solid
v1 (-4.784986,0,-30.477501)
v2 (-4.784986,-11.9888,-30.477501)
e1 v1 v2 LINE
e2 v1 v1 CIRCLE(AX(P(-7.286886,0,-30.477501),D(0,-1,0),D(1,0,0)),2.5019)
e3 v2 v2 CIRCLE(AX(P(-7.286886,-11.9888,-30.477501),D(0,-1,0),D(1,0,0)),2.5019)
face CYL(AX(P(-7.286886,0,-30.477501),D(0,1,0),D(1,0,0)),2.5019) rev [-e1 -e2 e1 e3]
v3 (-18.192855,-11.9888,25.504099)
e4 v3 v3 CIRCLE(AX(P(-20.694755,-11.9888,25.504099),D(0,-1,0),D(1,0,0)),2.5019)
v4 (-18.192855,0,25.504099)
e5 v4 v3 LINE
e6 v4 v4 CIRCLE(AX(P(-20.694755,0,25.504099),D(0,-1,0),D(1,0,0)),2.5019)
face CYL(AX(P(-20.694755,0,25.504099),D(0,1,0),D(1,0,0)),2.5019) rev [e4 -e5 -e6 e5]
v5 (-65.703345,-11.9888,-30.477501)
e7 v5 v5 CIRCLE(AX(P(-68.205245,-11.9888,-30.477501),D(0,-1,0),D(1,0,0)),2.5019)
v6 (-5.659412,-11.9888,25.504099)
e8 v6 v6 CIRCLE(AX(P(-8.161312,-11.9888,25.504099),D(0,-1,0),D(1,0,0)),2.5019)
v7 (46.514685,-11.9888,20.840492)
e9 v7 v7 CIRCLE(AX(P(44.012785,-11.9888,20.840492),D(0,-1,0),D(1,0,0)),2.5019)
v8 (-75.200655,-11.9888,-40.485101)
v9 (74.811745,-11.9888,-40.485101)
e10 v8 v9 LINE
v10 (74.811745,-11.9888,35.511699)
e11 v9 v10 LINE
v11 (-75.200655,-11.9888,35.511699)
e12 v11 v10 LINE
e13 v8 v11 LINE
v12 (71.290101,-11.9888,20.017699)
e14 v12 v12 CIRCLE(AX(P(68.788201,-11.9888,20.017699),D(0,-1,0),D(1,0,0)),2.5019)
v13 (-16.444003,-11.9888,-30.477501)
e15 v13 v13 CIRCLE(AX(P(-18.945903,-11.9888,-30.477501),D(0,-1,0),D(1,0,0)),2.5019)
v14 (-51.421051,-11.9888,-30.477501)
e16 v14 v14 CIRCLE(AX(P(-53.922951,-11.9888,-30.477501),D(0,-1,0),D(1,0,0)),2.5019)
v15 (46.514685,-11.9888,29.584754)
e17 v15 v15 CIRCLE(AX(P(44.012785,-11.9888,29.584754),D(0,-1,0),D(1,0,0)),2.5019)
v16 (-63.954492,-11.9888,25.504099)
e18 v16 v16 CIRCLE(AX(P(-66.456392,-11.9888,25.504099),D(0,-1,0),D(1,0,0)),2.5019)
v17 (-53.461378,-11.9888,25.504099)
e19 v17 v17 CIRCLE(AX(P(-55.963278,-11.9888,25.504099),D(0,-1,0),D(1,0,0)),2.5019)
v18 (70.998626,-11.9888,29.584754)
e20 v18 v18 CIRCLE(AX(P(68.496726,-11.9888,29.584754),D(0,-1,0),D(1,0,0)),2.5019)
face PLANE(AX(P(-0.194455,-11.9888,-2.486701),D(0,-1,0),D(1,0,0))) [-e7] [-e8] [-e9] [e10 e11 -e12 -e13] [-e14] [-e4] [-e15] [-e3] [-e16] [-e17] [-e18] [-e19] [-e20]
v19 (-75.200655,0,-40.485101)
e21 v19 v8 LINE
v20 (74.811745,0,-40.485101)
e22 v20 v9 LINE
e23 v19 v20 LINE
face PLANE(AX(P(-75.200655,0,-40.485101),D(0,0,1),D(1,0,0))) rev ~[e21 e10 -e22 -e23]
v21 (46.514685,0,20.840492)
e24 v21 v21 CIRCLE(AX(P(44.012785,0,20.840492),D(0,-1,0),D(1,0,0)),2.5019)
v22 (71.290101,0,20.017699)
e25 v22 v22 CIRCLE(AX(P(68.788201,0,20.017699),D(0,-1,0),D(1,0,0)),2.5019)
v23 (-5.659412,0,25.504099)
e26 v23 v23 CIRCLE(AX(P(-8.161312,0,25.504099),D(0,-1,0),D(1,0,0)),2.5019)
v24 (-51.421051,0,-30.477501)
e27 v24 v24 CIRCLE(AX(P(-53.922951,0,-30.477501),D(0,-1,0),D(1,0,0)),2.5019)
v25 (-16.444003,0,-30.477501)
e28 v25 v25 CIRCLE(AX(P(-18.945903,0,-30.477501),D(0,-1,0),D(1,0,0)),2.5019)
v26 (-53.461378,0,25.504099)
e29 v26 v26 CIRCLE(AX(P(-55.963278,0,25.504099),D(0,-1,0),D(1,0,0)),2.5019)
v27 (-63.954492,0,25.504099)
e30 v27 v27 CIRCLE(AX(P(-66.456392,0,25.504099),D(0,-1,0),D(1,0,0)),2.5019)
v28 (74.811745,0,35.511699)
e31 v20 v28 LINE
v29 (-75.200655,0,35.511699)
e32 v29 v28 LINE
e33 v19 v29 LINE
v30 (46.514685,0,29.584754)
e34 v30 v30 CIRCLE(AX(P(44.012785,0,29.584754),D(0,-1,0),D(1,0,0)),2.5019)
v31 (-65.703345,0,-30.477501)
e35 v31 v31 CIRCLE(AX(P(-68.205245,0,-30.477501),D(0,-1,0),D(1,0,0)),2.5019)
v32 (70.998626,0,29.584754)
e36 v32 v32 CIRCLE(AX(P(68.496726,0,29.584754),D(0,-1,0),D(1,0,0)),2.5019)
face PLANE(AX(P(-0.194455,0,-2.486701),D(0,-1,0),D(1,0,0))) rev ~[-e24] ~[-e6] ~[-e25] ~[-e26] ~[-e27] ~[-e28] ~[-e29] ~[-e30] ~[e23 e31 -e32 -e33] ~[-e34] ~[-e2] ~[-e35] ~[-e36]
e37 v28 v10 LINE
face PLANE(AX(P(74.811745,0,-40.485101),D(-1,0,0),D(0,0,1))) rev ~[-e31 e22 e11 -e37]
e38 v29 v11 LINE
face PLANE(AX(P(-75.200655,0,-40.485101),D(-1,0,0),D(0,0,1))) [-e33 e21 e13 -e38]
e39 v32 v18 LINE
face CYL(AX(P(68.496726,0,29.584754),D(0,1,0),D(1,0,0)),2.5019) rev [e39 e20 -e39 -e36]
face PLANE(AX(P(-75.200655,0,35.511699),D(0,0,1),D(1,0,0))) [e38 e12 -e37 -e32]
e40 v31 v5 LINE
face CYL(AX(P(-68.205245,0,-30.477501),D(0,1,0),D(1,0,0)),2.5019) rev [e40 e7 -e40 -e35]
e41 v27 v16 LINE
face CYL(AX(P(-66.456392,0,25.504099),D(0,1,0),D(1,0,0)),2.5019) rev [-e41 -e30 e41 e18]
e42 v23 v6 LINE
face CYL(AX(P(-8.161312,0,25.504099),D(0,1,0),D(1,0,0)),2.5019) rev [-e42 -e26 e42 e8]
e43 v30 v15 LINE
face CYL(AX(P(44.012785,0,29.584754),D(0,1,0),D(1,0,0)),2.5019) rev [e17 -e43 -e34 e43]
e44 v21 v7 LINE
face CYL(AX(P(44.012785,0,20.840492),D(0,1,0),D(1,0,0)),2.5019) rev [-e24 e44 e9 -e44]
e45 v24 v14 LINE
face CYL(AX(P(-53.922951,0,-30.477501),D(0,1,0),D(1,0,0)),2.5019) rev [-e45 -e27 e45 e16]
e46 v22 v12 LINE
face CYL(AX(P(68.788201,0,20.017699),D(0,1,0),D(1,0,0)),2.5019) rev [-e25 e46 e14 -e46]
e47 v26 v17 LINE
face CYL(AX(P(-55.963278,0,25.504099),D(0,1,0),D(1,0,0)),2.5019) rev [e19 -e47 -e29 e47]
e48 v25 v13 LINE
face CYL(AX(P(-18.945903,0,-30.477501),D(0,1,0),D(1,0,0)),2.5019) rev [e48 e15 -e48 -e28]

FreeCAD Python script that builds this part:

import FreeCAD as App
import Part
import Sketcher
Q = App.Units.Quantity

doc = App.newDocument("Part")
params = doc.addObject("Spreadsheet::Sheet", "Params")
for row, (alias, value) in enumerate([
    ("sketch1_diameter", "0.197 in"),
    ("sketch1_width", "5.906 in"),
    ("sketch1_height", "2.992 in"),
    ("pad1_length", "0.472 in"),
], start=1):
    params.set(f"A{row}", alias)
    params.set(f"B{row}", "=" + value)
    params.setAlias(f"B{row}", alias)

body = doc.addObject("PartDesign::Body", "Body")

sketch1 = body.newObject("Sketcher::SketchObject", "Sketch")
sketch1.AttachmentSupport = (doc.getObject("XZ_Plane"), [""])
sketch1.MapMode = "FlatFace"
sketch1.addGeometry(Part.LineSegment(App.Vector(-75.2, 35.5, 0), App.Vector(-75.2, -40.5, 0)), False)
sketch1.addGeometry(Part.LineSegment(App.Vector(-75.2, -40.5, 0), App.Vector(74.8, -40.5, 0)), False)
sketch1.addGeometry(Part.LineSegment(App.Vector(74.8, -40.5, 0), App.Vector(74.8, 35.5, 0)), False)
sketch1.addGeometry(Part.LineSegment(App.Vector(74.8, 35.5, 0), App.Vector(-75.2, 35.5, 0)), False)
sketch1.addGeometry(Part.Circle(App.Vector(-68.2, -30.5, 0), App.Vector(0, 0, 1), 2.5), False)
sketch1.addGeometry(Part.Circle(App.Vector(-53.9, -30.5, 0), App.Vector(0, 0, 1), 2.5), False)
sketch1.addGeometry(Part.Circle(App.Vector(-18.9, -30.5, 0), App.Vector(0, 0, 1), 2.5), False)
sketch1.addGeometry(Part.Circle(App.Vector(-7.3, -30.5, 0), App.Vector(0, 0, 1), 2.5), False)
sketch1.addGeometry(Part.Circle(App.Vector(-66.5, 25.5, 0), App.Vector(0, 0, 1), 2.5), False)
sketch1.addGeometry(Part.Circle(App.Vector(-56, 25.5, 0), App.Vector(0, 0, 1), 2.5), False)
sketch1.addGeometry(Part.Circle(App.Vector(-20.7, 25.5, 0), App.Vector(0, 0, 1), 2.5), False)
sketch1.addGeometry(Part.Circle(App.Vector(-8.2, 25.5, 0), App.Vector(0, 0, 1), 2.5), False)
sketch1.addGeometry(Part.Circle(App.Vector(44, 20.8, 0), App.Vector(0, 0, 1), 2.5), False)
sketch1.addGeometry(Part.Circle(App.Vector(68.8, 20, 0), App.Vector(0, 0, 1), 2.5), False)
sketch1.addGeometry(Part.Circle(App.Vector(44, 29.6, 0), App.Vector(0, 0, 1), 2.5), False)
sketch1.addGeometry(Part.Circle(App.Vector(68.5, 29.6, 0), App.Vector(0, 0, 1), 2.5), False)
sketch1.addConstraint(Sketcher.Constraint("Coincident", 0, 2, 1, 1))
sketch1.addConstraint(Sketcher.Constraint("Coincident", 1, 2, 2, 1))
sketch1.addConstraint(Sketcher.Constraint("Coincident", 2, 2, 3, 1))
sketch1.addConstraint(Sketcher.Constraint("Coincident", 3, 2, 0, 1))
sketch1.addConstraint(Sketcher.Constraint("Vertical", 0))
sketch1.addConstraint(Sketcher.Constraint("Horizontal", 1))
sketch1.addConstraint(Sketcher.Constraint("Vertical", 2))
sketch1.addConstraint(Sketcher.Constraint("Horizontal", 3))
sketch1.addConstraint(Sketcher.Constraint("Equal", 4, 5))
sketch1.addConstraint(Sketcher.Constraint("Equal", 5, 6))
sketch1.addConstraint(Sketcher.Constraint("Equal", 6, 7))
sketch1.addConstraint(Sketcher.Constraint("Equal", 7, 8))
sketch1.addConstraint(Sketcher.Constraint("Equal", 8, 9))
sketch1.addConstraint(Sketcher.Constraint("Equal", 9, 10))
sketch1.addConstraint(Sketcher.Constraint("Equal", 10, 11))
sketch1.addConstraint(Sketcher.Constraint("Equal", 11, 12))
sketch1.addConstraint(Sketcher.Constraint("Equal", 12, 13))
sketch1.addConstraint(Sketcher.Constraint("Equal", 13, 14))
sketch1.addConstraint(Sketcher.Constraint("Equal", 14, 15))
sketch1.addConstraint(Sketcher.Constraint("Horizontal", 4, 3, 5, 3))
sketch1.addConstraint(Sketcher.Constraint("Horizontal", 5, 3, 6, 3))
sketch1.addConstraint(Sketcher.Constraint("Horizontal", 6, 3, 7, 3))
sketch1.addConstraint(Sketcher.Constraint("Horizontal", 8, 3, 9, 3))
sketch1.addConstraint(Sketcher.Constraint("Horizontal", 9, 3, 10, 3))
sketch1.addConstraint(Sketcher.Constraint("Horizontal", 10, 3, 11, 3))
sketch1.addConstraint(Sketcher.Constraint("Horizontal", 14, 3, 15, 3))
sketch1.addConstraint(Sketcher.Constraint("Vertical", 12, 3, 14, 3))
sketch1.addConstraint(Sketcher.Constraint("Diameter", 4, Q("0.197 in")))
sketch1.addConstraint(Sketcher.Constraint("DistanceX", 1, 1, 1, 2, Q("5.906 in")))
sketch1.addConstraint(Sketcher.Constraint("DistanceY", 0, 2, 0, 1, Q("2.992 in")))
sketch1.addConstraint(Sketcher.Constraint("DistanceY", 13, 3, 2, 2, Q("0.61 in")))
sketch1.addConstraint(Sketcher.Constraint("DistanceY", 4, 3, 8, 3, Q("2.204 in")))
sketch1.addConstraint(Sketcher.Constraint("DistanceY", 13, 3, 11, 3, Q("0.216 in")))
sketch1.addConstraint(Sketcher.Constraint("DistanceY", 4, 3, -1, 1, Q("30.477501 mm")))
sketch1.addConstraint(Sketcher.Constraint("DistanceX", -1, 1, 13, 3, Q("68.788201 mm")))
sketch1.addConstraint(Sketcher.Constraint("DistanceX", 3, 2, 10, 3, Q("54.5059 mm")))
sketch1.addConstraint(Sketcher.Constraint("DistanceX", 5, 3, -1, 1, Q("53.922951 mm")))
sketch1.addConstraint(Sketcher.Constraint("DistanceX", 8, 3, -1, 1, Q("66.456392 mm")))
sketch1.addConstraint(Sketcher.Constraint("DistanceX", 9, 3, -1, 1, Q("55.963278 mm")))
sketch1.addConstraint(Sketcher.Constraint("DistanceX", 4, 3, 7, 3, Q("60.918359 mm")))
sketch1.addConstraint(Sketcher.Constraint("DistanceX", 8, 3, 6, 3, Q("47.510489 mm")))
sketch1.addConstraint(Sketcher.Constraint("DistanceX", 10, 3, 6, 3, Q("1.748852 mm")))
sketch1.addConstraint(Sketcher.Constraint("DistanceX", 10, 3, 7, 3, Q("13.407869 mm")))
sketch1.addConstraint(Sketcher.Constraint("DistanceX", 6, 3, 11, 3, Q("10.784591 mm")))
sketch1.addConstraint(Sketcher.Constraint("DistanceX", 10, 3, 12, 3, Q("64.70754 mm")))
sketch1.addConstraint(Sketcher.Constraint("DistanceY", 12, 3, 14, 3, Q("8.744262 mm")))
sketch1.addConstraint(Sketcher.Constraint("DistanceX", 14, 3, 15, 3, Q("24.483941 mm")))
sketch1.addConstraint(Sketcher.Constraint("DistanceY", -1, 1, 12, 3, Q("20.840492 mm")))
sketch1.setExpression("Constraints[27]", "Params.sketch1_diameter")
sketch1.setExpression("Constraints[28]", "Params.sketch1_width")
sketch1.setExpression("Constraints[29]", "Params.sketch1_height")
pad1 = body.newObject("PartDesign::Pad", "Pad")
pad1.Profile = sketch1
pad1.setExpression("Length", "Params.pad1_length")

doc.recompute()
